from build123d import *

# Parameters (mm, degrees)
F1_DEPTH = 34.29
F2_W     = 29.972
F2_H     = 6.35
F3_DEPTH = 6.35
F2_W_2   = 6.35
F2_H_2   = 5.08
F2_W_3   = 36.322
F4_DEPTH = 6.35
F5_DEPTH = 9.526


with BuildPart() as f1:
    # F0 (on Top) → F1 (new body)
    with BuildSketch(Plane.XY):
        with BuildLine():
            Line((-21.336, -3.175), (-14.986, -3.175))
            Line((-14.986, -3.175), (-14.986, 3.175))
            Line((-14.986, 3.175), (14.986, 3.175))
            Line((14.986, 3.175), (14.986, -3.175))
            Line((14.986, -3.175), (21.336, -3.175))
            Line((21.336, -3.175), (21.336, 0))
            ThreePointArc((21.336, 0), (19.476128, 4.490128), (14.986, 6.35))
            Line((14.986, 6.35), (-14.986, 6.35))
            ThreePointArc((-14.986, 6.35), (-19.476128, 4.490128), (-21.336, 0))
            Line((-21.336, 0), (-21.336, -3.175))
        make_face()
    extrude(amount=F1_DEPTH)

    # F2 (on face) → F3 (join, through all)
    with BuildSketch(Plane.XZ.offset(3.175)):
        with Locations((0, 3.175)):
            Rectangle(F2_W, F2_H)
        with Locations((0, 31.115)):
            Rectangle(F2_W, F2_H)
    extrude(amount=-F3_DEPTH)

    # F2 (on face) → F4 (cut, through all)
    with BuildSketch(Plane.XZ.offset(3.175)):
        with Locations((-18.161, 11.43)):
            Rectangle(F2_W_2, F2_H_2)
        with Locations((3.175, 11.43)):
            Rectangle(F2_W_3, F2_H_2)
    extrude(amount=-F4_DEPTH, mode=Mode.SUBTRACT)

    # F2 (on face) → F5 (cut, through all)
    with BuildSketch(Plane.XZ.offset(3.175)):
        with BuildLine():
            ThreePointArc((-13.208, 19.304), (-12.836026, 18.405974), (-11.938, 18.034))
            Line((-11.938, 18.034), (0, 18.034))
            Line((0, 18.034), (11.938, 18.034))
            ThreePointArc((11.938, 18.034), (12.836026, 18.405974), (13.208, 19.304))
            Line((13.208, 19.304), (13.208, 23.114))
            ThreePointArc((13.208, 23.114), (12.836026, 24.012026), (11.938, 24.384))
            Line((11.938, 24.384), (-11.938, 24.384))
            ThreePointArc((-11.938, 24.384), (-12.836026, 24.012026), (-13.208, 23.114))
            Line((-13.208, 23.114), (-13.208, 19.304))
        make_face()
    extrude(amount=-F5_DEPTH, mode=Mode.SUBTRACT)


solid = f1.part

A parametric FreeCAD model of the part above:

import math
import FreeCAD as App
import Part
import Sketcher

V = App.Vector
Q = App.Units.Quantity


def add_polygon(sketch, points):
    """Adds a closed chain of lines whose ends are joined by coincident constraints."""
    first, n = sketch.GeometryCount, len(points)
    for a, b in zip(points, points[1:] + points[:1]):
        sketch.addGeometry(Part.LineSegment(App.Vector(*a, 0), App.Vector(*b, 0)), False)
    for i in range(n):
        sketch.addConstraint(Sketcher.Constraint("Coincident", first + i, 2, first + (i + 1) % n, 1))

doc = App.newDocument("Part")
body = doc.addObject("PartDesign::Body", "Body")

sketch1 = body.newObject("Sketcher::SketchObject", "Sketch")
sketch1.AttachmentSupport = (doc.getObject("XY_Plane"), [""])
sketch1.MapMode = "FlatFace"
sketch1.addGeometry(Part.LineSegment(V(-21.3, -3.2, 0), V(-15, -3.2, 0)), False)
sketch1.addGeometry(Part.LineSegment(V(-15, -3.2, 0), V(-15, 3.2, 0)), False)
sketch1.addGeometry(Part.LineSegment(V(-15, 3.2, 0), V(15, 3.2, 0)), False)
sketch1.addGeometry(Part.LineSegment(V(15, 3.2, 0), V(15, -3.2, 0)), False)
sketch1.addGeometry(Part.LineSegment(V(15, -3.2, 0), V(21.3, -3.2, 0)), False)
sketch1.addGeometry(Part.LineSegment(V(21.3, -3.2, 0), V(21.3, 0, 0)), False)
sketch1.addGeometry(Part.ArcOfCircle(Part.Circle(V(15, 0, 0), V(0, 0, 1), 6.4), math.radians(0), math.radians(90)), False)
sketch1.addGeometry(Part.LineSegment(V(15, 6.3, 0), V(-15, 6.3, 0)), False)
sketch1.addGeometry(Part.ArcOfCircle(Part.Circle(V(-15, 0, 0), V(0, 0, 1), 6.4), math.radians(90), math.radians(180)), False)
sketch1.addGeometry(Part.LineSegment(V(-21.3, 0, 0), V(-21.3, -3.2, 0)), False)
sketch1.addConstraint(Sketcher.Constraint("Coincident", 0, 2, 1, 1))
sketch1.addConstraint(Sketcher.Constraint("Coincident", 1, 2, 2, 1))
sketch1.addConstraint(Sketcher.Constraint("Coincident", 2, 2, 3, 1))
sketch1.addConstraint(Sketcher.Constraint("Coincident", 3, 2, 4, 1))
sketch1.addConstraint(Sketcher.Constraint("Coincident", 4, 2, 5, 1))
sketch1.addConstraint(Sketcher.Constraint("Tangent", 5, 2, 6, 1))
sketch1.addConstraint(Sketcher.Constraint("Tangent", 6, 2, 7, 1))
sketch1.addConstraint(Sketcher.Constraint("Tangent", 7, 2, 8, 1))
sketch1.addConstraint(Sketcher.Constraint("Tangent", 8, 2, 9, 1))
sketch1.addConstraint(Sketcher.Constraint("Coincident", 9, 2, 0, 1))
sketch1.addConstraint(Sketcher.Constraint("Horizontal", 0))
sketch1.addConstraint(Sketcher.Constraint("Vertical", 1))
sketch1.addConstraint(Sketcher.Constraint("Horizontal", 2))
sketch1.addConstraint(Sketcher.Constraint("Vertical", 3))
sketch1.addConstraint(Sketcher.Constraint("Horizontal", 4))
sketch1.addConstraint(Sketcher.Constraint("Vertical", 5))
sketch1.addConstraint(Sketcher.Constraint("Horizontal", 7))
sketch1.addConstraint(Sketcher.Constraint("Vertical", 9))
sketch1.addConstraint(Sketcher.Constraint("Equal", 6, 8))
sketch1.addConstraint(Sketcher.Constraint("Symmetric", 6, 3, 8, 3, -1, 1))
sketch1.addConstraint(Sketcher.Constraint("Symmetric", 0, 2, 2, 2, -1, 1))
sketch1.addConstraint(Sketcher.Constraint("Horizontal", 0, 2, 3, 2))
sketch1.addConstraint(Sketcher.Constraint("Vertical", 8, 3, 0, 2))
sketch1.addConstraint(Sketcher.Constraint("Equal", 4, 1))
sketch1.addConstraint(Sketcher.Constraint("Radius", 6, Q("0.25 in")))
sketch1.addConstraint(Sketcher.Constraint("DistanceX", 2, 1, 2, 2, Q("1.18 in")))
pad1 = body.newObject("PartDesign::Pad", "Pad")
pad1.Profile = sketch1
pad1.Length = Q("1.35 in")

sketch2 = body.newObject("Sketcher::SketchObject", "Sketch001")
sketch2.AttachmentSupport = (doc.getObject("XZ_Plane"), [""])
sketch2.MapMode = "FlatFace"
sketch2.AttachmentOffset = App.Placement(V(0, 0, 0.125 * 25.4), App.Rotation())
add_polygon(sketch2, [(-15, 6), (-15, 0), (15, 0), (15, 6)])
add_polygon(sketch2, [(-15, 34), (-15, 28), (15, 28), (15, 34)])
sketch2.addConstraint(Sketcher.Constraint("Vertical", 0))
sketch2.addConstraint(Sketcher.Constraint("Horizontal", 1))
sketch2.addConstraint(Sketcher.Constraint("Vertical", 2))
sketch2.addConstraint(Sketcher.Constraint("Horizontal", 3))
sketch2.addConstraint(Sketcher.Constraint("Vertical", 4))
sketch2.addConstraint(Sketcher.Constraint("Horizontal", 5))
sketch2.addConstraint(Sketcher.Constraint("Vertical", 6))
sketch2.addConstraint(Sketcher.Constraint("Horizontal", 7))
sketch2.addConstraint(Sketcher.Constraint("Symmetric", 0, 2, 1, 2, -1, 1))
sketch2.addConstraint(Sketcher.Constraint("Vertical", 3, 2, 4, 2))
sketch2.addConstraint(Sketcher.Constraint("Vertical", 2, 2, 5, 2))
sketch2.addConstraint(Sketcher.Constraint("Equal", 2, 4))
sketch2.addConstraint(Sketcher.Constraint("DistanceX", 1, 1, 1, 2, Q("1.18 in")))
sketch2.addConstraint(Sketcher.Constraint("DistanceY", 0, 2, 0, 1, Q("0.25 in")))
sketch2.addConstraint(Sketcher.Constraint("DistanceY", -1, 1, 4, 2, Q("1.1 in")))
pad2 = body.newObject("PartDesign::Pad", "Pad001")
pad2.Profile = sketch2
pad2.Type = "UpToLast"
pad2.Reversed = True

sketch3 = body.newObject("Sketcher::SketchObject", "Sketch002")
sketch3.AttachmentSupport = (doc.getObject("XZ_Plane"), [""])
sketch3.MapMode = "FlatFace"
sketch3.AttachmentOffset = App.Placement(V(0, 0, 0.125 * 25.4), App.Rotation())
add_polygon(sketch3, [(-21, 14), (-21, 9), (21, 9), (21, 14)])
sketch3.addConstraint(Sketcher.Constraint("Vertical", 0))
sketch3.addConstraint(Sketcher.Constraint("Horizontal", 1))
sketch3.addConstraint(Sketcher.Constraint("Vertical", 2))
sketch3.addConstraint(Sketcher.Constraint("Horizontal", 3))
sketch3.addConstraint(Sketcher.Constraint("DistanceY", 0, 2, 0, 1, Q("0.2 in")))
sketch3.addConstraint(Sketcher.Constraint("DistanceX", 1, 1, 1, 2, Q("1.68 in")))
sketch3.addConstraint(Sketcher.Constraint("DistanceX", 0, 2, -1, 1, Q("0.84 in")))
sketch3.addConstraint(Sketcher.Constraint("DistanceY", -1, 1, 0, 2, Q("0.35 in")))
pocket1 = body.newObject("PartDesign::Pocket", "Pocket")
pocket1.Profile = sketch3
pocket1.Length = Q("0.25 in")

sketch4 = body.newObject("Sketcher::SketchObject", "Sketch003")
sketch4.AttachmentSupport = (doc.getObject("XZ_Plane"), [""])
sketch4.MapMode = "FlatFace"
sketch4.AttachmentOffset = App.Placement(V(0, 0, 0.125 * 25.4), App.Rotation())
sketch4.addGeometry(Part.ArcOfCircle(Part.Circle(V(-11.9, 19.3, 0), V(0, 0, 1), 1.3), math.radians(180), math.radians(270)), False)
sketch4.addGeometry(Part.LineSegment(V(-11.9, 18, 0), V(11.9, 18, 0)), False)
sketch4.addGeometry(Part.ArcOfCircle(Part.Circle(V(11.9, 19.3, 0), V(0, 0, 1), 1.3), math.radians(-90), math.radians(0)), False)
sketch4.addGeometry(Part.LineSegment(V(13.2, 19.3, 0), V(13.2, 23.1, 0)), False)
sketch4.addGeometry(Part.ArcOfCircle(Part.Circle(V(11.9, 23.1, 0), V(0, 0, 1), 1.3), math.radians(0), math.radians(90)), False)
sketch4.addGeometry(Part.LineSegment(V(11.9, 24.4, 0), V(-11.9, 24.4, 0)), False)
sketch4.addGeometry(Part.ArcOfCircle(Part.Circle(V(-11.9, 23.1, 0), V(0, 0, 1), 1.3), math.radians(90), math.radians(180)), False)
sketch4.addGeometry(Part.LineSegment(V(-13.2, 23.1, 0), V(-13.2, 19.3, 0)), False)
sketch4.addConstraint(Sketcher.Constraint("Tangent", 0, 2, 1, 1))
sketch4.addConstraint(Sketcher.Constraint("Tangent", 1, 2, 2, 1))
sketch4.addConstraint(Sketcher.Constraint("Tangent", 2, 2, 3, 1))
sketch4.addConstraint(Sketcher.Constraint("Tangent", 3, 2, 4, 1))
sketch4.addConstraint(Sketcher.Constraint("Tangent", 4, 2, 5, 1))
sketch4.addConstraint(Sketcher.Constraint("Tangent", 5, 2, 6, 1))
sketch4.addConstraint(Sketcher.Constraint("Tangent", 6, 2, 7, 1))
sketch4.addConstraint(Sketcher.Constraint("Tangent", 7, 2, 0, 1))
sketch4.addConstraint(Sketcher.Constraint("Horizontal", 1))
sketch4.addConstraint(Sketcher.Constraint("Vertical", 3))
sketch4.addConstraint(Sketcher.Constraint("Horizontal", 5))
sketch4.addConstraint(Sketcher.Constraint("Vertical", 7))
sketch4.addConstraint(Sketcher.Constraint("Equal", 0, 2))
sketch4.addConstraint(Sketcher.Constraint("Equal", 2, 4))
sketch4.addConstraint(Sketcher.Constraint("Equal", 4, 6))
sketch4.addConstraint(Sketcher.Constraint("Radius", 0, Q("0.0499999 in")))
sketch4.addConstraint(Sketcher.Constraint("DistanceX", 1, 1, 1, 2, Q("0.94 in")))
sketch4.addConstraint(Sketcher.Constraint("DistanceY", 3, 1, 3, 2, Q("0.15 in")))
sketch4.addConstraint(Sketcher.Constraint("DistanceX", 0, 3, -1, 1, Q("0.4700001 in")))
sketch4.addConstraint(Sketcher.Constraint("DistanceY", -1, 1, 0, 3, Q("0.7599999 in")))
pocket2 = body.newObject("PartDesign::Pocket", "Pocket001")
pocket2.Profile = sketch4
pocket2.Type = "ThroughAll"

doc.recompute()
